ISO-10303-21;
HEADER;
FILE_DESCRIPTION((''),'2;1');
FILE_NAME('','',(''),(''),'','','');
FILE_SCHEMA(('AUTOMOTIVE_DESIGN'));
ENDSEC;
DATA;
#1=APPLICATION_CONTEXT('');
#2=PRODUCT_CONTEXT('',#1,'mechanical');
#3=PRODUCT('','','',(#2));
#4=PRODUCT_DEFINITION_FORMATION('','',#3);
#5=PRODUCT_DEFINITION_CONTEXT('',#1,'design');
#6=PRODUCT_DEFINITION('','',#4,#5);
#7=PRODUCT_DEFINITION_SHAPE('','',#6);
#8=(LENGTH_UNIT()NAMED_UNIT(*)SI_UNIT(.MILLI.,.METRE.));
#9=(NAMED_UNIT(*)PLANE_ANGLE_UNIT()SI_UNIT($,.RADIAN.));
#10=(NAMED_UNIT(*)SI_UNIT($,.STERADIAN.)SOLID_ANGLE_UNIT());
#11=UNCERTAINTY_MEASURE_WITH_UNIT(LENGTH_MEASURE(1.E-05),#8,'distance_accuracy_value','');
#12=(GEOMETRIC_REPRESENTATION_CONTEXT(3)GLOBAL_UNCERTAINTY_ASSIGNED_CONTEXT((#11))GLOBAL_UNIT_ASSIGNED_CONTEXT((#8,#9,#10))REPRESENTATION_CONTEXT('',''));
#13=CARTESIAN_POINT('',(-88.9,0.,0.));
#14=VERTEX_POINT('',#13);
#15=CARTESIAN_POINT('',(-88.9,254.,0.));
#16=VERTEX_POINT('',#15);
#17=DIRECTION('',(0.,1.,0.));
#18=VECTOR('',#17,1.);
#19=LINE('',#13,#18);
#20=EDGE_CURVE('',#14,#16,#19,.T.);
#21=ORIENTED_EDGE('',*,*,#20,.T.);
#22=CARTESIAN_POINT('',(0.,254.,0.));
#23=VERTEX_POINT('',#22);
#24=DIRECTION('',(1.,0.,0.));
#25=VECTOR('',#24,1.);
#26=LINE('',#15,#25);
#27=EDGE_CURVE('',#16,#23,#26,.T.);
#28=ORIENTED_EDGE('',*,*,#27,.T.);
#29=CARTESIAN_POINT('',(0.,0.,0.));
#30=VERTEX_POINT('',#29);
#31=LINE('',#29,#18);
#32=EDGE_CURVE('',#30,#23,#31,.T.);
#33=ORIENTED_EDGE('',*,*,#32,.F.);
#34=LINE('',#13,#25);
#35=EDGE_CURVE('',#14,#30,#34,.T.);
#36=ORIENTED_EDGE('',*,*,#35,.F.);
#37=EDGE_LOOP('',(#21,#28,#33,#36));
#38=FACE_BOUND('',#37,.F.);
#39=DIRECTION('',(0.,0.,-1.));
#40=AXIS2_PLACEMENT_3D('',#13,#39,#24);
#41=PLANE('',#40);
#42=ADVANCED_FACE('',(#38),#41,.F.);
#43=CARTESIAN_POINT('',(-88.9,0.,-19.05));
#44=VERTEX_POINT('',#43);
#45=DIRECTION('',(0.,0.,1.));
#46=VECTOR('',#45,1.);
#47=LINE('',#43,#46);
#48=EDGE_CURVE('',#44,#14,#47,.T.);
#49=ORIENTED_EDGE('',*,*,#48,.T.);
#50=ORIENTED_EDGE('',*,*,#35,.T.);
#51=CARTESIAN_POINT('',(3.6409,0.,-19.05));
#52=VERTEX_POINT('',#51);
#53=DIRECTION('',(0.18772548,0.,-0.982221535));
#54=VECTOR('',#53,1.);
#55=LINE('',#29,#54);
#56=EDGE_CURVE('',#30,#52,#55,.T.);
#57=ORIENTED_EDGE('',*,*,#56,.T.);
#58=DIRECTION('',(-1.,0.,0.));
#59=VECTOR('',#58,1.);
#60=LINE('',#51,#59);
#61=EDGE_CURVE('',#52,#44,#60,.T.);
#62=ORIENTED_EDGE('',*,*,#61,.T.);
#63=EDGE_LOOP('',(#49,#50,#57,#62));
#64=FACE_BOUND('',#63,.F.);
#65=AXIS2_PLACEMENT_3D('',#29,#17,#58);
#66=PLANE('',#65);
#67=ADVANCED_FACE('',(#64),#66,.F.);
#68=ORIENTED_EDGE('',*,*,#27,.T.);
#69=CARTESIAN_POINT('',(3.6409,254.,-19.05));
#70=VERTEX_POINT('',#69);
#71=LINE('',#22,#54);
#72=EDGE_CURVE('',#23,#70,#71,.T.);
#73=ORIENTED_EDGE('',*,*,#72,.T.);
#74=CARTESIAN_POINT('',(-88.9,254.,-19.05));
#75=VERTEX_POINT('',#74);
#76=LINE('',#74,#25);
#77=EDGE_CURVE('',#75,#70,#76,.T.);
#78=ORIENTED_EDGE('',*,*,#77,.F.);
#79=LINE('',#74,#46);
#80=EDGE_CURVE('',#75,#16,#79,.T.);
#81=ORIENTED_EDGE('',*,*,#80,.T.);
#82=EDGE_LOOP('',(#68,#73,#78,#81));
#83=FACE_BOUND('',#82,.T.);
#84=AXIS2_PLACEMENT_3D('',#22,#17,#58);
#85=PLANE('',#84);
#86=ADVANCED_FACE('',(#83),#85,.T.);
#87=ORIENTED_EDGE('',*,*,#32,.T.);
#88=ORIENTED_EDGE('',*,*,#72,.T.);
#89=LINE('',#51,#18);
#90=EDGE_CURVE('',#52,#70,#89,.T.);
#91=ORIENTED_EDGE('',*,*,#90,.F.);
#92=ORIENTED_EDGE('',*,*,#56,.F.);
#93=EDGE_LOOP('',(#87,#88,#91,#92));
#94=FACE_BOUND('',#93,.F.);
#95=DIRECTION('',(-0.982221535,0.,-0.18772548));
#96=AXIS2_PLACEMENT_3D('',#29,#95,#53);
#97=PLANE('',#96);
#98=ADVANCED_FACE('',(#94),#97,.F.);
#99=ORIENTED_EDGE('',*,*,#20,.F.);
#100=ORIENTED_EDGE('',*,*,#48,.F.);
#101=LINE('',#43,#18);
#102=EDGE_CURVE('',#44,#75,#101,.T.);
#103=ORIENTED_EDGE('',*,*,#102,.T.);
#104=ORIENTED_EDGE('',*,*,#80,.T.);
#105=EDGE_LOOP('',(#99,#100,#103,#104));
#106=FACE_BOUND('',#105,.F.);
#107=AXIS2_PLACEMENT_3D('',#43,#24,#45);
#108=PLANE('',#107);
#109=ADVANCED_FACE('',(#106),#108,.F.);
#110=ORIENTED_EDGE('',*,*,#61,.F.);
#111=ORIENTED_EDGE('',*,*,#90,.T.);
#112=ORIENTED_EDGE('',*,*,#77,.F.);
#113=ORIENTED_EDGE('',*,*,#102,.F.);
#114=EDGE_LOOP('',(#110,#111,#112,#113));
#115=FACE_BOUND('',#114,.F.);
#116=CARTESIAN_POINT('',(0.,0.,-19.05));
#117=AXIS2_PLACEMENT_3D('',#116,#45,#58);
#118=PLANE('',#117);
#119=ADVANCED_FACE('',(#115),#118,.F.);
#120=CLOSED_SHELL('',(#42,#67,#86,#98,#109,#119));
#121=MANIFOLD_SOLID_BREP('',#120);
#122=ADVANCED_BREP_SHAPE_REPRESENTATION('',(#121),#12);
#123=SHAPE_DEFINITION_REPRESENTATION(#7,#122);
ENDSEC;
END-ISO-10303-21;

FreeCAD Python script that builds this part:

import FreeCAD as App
import Part
import Sketcher
Q = App.Units.Quantity


def add_polygon(sketch, points):
    """Adds a closed chain of lines whose ends are joined by coincident constraints."""
    first, n = sketch.GeometryCount, len(points)
    for a, b in zip(points, points[1:] + points[:1]):
        sketch.addGeometry(Part.LineSegment(App.Vector(*a, 0), App.Vector(*b, 0)), False)
    for i in range(n):
        sketch.addConstraint(Sketcher.Constraint("Coincident", first + i, 2, first + (i + 1) % n, 1))

doc = App.newDocument("Part")
body = doc.addObject("PartDesign::Body", "Body")

# Sketch on XZ plane
sketch1 = body.newObject("Sketcher::SketchObject", "Sketch")
sketch1.AttachmentSupport = (doc.getObject("XZ_Plane"), [""])
sketch1.MapMode = "FlatFace"
add_polygon(sketch1, [(-89, -19), (-89, 0), (0, 0), (4, -19)])  # lines 0-3
sketch1.addConstraint(Sketcher.Constraint("Vertical", 0))
sketch1.addConstraint(Sketcher.Constraint("Horizontal", 1))
sketch1.addConstraint(Sketcher.Constraint("Horizontal", 3))
sketch1.addConstraint(Sketcher.Constraint("Coincident", 1, 2, -1, 1))
sketch1.addConstraint(Sketcher.Constraint("DistanceX", 1, 1, 1, 2, Q("3.5 in")))
sketch1.addConstraint(Sketcher.Constraint("DistanceY", 0, 1, 0, 2, Q("0.75 in")))
sketch1.addConstraint(Sketcher.Constraint("Angle", 2, Q("-79.18 deg")))
pad1 = body.newObject("PartDesign::Pad", "Pad")
pad1.Profile = sketch1
pad1.Length = Q("10 in")
pad1.Reversed = True

doc.recompute()
